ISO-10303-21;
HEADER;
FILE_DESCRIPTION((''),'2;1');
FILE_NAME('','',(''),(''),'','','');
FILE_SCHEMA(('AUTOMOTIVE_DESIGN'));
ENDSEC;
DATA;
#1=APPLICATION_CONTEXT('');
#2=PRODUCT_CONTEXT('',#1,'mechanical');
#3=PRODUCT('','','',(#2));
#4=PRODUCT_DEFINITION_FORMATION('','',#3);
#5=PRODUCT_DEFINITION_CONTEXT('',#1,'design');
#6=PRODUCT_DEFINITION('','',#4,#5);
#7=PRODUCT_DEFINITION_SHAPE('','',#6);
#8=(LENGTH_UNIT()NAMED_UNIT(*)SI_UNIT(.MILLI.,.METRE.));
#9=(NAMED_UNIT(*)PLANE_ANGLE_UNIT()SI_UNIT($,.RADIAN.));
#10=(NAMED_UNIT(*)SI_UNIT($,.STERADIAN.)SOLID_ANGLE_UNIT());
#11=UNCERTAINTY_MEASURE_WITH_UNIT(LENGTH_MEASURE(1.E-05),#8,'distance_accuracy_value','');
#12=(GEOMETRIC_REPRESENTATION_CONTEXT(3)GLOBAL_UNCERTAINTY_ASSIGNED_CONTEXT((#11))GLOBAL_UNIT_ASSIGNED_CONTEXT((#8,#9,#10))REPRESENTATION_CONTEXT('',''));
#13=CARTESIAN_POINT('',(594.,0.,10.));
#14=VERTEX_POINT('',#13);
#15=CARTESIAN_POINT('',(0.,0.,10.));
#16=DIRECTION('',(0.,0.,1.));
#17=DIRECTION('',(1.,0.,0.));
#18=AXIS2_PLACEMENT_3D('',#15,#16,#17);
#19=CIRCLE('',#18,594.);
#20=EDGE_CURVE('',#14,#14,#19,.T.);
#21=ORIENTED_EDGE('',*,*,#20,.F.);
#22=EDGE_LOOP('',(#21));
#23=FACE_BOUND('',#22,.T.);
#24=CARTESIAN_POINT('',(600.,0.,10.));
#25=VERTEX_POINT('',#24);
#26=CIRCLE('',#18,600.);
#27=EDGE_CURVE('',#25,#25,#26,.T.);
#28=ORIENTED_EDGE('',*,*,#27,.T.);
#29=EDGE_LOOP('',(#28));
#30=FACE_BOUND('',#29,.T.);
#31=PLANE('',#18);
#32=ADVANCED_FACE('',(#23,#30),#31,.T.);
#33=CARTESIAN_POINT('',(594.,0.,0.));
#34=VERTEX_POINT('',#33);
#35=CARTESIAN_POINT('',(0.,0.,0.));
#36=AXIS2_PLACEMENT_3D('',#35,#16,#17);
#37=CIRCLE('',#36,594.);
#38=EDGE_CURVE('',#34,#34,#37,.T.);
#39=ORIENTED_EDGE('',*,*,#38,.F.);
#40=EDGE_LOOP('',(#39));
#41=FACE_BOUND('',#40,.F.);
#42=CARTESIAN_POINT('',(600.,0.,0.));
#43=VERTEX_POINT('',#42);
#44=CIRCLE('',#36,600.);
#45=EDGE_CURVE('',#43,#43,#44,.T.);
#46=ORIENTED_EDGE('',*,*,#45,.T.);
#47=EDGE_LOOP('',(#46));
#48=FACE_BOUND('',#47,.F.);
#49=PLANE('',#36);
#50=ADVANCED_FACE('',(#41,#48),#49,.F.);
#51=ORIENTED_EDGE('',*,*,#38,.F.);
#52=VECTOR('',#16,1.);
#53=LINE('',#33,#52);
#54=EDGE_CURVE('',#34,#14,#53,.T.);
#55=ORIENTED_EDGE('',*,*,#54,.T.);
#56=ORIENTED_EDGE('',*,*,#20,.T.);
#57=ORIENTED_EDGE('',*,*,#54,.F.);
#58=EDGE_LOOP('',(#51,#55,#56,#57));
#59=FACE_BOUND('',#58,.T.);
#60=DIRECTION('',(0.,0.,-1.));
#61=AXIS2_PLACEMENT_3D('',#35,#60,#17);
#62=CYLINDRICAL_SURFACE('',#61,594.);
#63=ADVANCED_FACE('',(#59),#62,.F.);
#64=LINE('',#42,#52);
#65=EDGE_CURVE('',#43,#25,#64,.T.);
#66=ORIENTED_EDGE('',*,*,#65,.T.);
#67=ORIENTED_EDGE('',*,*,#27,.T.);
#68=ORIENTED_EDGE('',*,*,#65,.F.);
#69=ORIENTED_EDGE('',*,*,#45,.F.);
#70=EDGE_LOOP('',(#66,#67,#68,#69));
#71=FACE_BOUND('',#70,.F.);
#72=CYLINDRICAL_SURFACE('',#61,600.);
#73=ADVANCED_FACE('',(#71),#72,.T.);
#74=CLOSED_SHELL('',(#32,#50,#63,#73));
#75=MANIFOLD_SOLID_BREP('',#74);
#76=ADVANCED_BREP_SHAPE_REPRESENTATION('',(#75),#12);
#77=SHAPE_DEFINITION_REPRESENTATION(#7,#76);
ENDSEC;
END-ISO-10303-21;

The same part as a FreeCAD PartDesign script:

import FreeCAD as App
import Part
import Sketcher

V = App.Vector
Q = App.Units.Quantity

doc = App.newDocument("Part")
params = doc.addObject("Spreadsheet::Sheet", "Params")
for row, (alias, value) in enumerate([
    ("sketch1_diameter", "1200 mm"),
    ("sketch1_diameter2", "1188 mm"),
    ("pad1_length", "10 mm"),
], start=1):
    params.set(f"A{row}", alias)
    params.set(f"B{row}", "=" + value)
    params.setAlias(f"B{row}", alias)

body = doc.addObject("PartDesign::Body", "Body")

sketch1 = body.newObject("Sketcher::SketchObject", "Sketch")
sketch1.AttachmentSupport = (doc.getObject("XY_Plane"), [""])
sketch1.MapMode = "FlatFace"
sketch1.addGeometry(Part.Circle(V(0, 0, 0), V(0, 0, 1), 600), False)
sketch1.addGeometry(Part.Circle(V(0, 0, 0), V(0, 0, 1), 594), False)
sketch1.addConstraint(Sketcher.Constraint("Coincident", 0, 3, -1, 1))
sketch1.addConstraint(Sketcher.Constraint("Coincident", 1, 3, -1, 1))
sketch1.addConstraint(Sketcher.Constraint("Diameter", 0, Q("1200 mm")))
sketch1.addConstraint(Sketcher.Constraint("Diameter", 1, Q("1188 mm")))
sketch1.setExpression("Constraints[2]", "Params.sketch1_diameter")
sketch1.setExpression("Constraints[3]", "Params.sketch1_diameter2")
pad1 = body.newObject("PartDesign::Pad", "Pad")
pad1.Profile = sketch1
pad1.setExpression("Length", "Params.pad1_length")

doc.recompute()
